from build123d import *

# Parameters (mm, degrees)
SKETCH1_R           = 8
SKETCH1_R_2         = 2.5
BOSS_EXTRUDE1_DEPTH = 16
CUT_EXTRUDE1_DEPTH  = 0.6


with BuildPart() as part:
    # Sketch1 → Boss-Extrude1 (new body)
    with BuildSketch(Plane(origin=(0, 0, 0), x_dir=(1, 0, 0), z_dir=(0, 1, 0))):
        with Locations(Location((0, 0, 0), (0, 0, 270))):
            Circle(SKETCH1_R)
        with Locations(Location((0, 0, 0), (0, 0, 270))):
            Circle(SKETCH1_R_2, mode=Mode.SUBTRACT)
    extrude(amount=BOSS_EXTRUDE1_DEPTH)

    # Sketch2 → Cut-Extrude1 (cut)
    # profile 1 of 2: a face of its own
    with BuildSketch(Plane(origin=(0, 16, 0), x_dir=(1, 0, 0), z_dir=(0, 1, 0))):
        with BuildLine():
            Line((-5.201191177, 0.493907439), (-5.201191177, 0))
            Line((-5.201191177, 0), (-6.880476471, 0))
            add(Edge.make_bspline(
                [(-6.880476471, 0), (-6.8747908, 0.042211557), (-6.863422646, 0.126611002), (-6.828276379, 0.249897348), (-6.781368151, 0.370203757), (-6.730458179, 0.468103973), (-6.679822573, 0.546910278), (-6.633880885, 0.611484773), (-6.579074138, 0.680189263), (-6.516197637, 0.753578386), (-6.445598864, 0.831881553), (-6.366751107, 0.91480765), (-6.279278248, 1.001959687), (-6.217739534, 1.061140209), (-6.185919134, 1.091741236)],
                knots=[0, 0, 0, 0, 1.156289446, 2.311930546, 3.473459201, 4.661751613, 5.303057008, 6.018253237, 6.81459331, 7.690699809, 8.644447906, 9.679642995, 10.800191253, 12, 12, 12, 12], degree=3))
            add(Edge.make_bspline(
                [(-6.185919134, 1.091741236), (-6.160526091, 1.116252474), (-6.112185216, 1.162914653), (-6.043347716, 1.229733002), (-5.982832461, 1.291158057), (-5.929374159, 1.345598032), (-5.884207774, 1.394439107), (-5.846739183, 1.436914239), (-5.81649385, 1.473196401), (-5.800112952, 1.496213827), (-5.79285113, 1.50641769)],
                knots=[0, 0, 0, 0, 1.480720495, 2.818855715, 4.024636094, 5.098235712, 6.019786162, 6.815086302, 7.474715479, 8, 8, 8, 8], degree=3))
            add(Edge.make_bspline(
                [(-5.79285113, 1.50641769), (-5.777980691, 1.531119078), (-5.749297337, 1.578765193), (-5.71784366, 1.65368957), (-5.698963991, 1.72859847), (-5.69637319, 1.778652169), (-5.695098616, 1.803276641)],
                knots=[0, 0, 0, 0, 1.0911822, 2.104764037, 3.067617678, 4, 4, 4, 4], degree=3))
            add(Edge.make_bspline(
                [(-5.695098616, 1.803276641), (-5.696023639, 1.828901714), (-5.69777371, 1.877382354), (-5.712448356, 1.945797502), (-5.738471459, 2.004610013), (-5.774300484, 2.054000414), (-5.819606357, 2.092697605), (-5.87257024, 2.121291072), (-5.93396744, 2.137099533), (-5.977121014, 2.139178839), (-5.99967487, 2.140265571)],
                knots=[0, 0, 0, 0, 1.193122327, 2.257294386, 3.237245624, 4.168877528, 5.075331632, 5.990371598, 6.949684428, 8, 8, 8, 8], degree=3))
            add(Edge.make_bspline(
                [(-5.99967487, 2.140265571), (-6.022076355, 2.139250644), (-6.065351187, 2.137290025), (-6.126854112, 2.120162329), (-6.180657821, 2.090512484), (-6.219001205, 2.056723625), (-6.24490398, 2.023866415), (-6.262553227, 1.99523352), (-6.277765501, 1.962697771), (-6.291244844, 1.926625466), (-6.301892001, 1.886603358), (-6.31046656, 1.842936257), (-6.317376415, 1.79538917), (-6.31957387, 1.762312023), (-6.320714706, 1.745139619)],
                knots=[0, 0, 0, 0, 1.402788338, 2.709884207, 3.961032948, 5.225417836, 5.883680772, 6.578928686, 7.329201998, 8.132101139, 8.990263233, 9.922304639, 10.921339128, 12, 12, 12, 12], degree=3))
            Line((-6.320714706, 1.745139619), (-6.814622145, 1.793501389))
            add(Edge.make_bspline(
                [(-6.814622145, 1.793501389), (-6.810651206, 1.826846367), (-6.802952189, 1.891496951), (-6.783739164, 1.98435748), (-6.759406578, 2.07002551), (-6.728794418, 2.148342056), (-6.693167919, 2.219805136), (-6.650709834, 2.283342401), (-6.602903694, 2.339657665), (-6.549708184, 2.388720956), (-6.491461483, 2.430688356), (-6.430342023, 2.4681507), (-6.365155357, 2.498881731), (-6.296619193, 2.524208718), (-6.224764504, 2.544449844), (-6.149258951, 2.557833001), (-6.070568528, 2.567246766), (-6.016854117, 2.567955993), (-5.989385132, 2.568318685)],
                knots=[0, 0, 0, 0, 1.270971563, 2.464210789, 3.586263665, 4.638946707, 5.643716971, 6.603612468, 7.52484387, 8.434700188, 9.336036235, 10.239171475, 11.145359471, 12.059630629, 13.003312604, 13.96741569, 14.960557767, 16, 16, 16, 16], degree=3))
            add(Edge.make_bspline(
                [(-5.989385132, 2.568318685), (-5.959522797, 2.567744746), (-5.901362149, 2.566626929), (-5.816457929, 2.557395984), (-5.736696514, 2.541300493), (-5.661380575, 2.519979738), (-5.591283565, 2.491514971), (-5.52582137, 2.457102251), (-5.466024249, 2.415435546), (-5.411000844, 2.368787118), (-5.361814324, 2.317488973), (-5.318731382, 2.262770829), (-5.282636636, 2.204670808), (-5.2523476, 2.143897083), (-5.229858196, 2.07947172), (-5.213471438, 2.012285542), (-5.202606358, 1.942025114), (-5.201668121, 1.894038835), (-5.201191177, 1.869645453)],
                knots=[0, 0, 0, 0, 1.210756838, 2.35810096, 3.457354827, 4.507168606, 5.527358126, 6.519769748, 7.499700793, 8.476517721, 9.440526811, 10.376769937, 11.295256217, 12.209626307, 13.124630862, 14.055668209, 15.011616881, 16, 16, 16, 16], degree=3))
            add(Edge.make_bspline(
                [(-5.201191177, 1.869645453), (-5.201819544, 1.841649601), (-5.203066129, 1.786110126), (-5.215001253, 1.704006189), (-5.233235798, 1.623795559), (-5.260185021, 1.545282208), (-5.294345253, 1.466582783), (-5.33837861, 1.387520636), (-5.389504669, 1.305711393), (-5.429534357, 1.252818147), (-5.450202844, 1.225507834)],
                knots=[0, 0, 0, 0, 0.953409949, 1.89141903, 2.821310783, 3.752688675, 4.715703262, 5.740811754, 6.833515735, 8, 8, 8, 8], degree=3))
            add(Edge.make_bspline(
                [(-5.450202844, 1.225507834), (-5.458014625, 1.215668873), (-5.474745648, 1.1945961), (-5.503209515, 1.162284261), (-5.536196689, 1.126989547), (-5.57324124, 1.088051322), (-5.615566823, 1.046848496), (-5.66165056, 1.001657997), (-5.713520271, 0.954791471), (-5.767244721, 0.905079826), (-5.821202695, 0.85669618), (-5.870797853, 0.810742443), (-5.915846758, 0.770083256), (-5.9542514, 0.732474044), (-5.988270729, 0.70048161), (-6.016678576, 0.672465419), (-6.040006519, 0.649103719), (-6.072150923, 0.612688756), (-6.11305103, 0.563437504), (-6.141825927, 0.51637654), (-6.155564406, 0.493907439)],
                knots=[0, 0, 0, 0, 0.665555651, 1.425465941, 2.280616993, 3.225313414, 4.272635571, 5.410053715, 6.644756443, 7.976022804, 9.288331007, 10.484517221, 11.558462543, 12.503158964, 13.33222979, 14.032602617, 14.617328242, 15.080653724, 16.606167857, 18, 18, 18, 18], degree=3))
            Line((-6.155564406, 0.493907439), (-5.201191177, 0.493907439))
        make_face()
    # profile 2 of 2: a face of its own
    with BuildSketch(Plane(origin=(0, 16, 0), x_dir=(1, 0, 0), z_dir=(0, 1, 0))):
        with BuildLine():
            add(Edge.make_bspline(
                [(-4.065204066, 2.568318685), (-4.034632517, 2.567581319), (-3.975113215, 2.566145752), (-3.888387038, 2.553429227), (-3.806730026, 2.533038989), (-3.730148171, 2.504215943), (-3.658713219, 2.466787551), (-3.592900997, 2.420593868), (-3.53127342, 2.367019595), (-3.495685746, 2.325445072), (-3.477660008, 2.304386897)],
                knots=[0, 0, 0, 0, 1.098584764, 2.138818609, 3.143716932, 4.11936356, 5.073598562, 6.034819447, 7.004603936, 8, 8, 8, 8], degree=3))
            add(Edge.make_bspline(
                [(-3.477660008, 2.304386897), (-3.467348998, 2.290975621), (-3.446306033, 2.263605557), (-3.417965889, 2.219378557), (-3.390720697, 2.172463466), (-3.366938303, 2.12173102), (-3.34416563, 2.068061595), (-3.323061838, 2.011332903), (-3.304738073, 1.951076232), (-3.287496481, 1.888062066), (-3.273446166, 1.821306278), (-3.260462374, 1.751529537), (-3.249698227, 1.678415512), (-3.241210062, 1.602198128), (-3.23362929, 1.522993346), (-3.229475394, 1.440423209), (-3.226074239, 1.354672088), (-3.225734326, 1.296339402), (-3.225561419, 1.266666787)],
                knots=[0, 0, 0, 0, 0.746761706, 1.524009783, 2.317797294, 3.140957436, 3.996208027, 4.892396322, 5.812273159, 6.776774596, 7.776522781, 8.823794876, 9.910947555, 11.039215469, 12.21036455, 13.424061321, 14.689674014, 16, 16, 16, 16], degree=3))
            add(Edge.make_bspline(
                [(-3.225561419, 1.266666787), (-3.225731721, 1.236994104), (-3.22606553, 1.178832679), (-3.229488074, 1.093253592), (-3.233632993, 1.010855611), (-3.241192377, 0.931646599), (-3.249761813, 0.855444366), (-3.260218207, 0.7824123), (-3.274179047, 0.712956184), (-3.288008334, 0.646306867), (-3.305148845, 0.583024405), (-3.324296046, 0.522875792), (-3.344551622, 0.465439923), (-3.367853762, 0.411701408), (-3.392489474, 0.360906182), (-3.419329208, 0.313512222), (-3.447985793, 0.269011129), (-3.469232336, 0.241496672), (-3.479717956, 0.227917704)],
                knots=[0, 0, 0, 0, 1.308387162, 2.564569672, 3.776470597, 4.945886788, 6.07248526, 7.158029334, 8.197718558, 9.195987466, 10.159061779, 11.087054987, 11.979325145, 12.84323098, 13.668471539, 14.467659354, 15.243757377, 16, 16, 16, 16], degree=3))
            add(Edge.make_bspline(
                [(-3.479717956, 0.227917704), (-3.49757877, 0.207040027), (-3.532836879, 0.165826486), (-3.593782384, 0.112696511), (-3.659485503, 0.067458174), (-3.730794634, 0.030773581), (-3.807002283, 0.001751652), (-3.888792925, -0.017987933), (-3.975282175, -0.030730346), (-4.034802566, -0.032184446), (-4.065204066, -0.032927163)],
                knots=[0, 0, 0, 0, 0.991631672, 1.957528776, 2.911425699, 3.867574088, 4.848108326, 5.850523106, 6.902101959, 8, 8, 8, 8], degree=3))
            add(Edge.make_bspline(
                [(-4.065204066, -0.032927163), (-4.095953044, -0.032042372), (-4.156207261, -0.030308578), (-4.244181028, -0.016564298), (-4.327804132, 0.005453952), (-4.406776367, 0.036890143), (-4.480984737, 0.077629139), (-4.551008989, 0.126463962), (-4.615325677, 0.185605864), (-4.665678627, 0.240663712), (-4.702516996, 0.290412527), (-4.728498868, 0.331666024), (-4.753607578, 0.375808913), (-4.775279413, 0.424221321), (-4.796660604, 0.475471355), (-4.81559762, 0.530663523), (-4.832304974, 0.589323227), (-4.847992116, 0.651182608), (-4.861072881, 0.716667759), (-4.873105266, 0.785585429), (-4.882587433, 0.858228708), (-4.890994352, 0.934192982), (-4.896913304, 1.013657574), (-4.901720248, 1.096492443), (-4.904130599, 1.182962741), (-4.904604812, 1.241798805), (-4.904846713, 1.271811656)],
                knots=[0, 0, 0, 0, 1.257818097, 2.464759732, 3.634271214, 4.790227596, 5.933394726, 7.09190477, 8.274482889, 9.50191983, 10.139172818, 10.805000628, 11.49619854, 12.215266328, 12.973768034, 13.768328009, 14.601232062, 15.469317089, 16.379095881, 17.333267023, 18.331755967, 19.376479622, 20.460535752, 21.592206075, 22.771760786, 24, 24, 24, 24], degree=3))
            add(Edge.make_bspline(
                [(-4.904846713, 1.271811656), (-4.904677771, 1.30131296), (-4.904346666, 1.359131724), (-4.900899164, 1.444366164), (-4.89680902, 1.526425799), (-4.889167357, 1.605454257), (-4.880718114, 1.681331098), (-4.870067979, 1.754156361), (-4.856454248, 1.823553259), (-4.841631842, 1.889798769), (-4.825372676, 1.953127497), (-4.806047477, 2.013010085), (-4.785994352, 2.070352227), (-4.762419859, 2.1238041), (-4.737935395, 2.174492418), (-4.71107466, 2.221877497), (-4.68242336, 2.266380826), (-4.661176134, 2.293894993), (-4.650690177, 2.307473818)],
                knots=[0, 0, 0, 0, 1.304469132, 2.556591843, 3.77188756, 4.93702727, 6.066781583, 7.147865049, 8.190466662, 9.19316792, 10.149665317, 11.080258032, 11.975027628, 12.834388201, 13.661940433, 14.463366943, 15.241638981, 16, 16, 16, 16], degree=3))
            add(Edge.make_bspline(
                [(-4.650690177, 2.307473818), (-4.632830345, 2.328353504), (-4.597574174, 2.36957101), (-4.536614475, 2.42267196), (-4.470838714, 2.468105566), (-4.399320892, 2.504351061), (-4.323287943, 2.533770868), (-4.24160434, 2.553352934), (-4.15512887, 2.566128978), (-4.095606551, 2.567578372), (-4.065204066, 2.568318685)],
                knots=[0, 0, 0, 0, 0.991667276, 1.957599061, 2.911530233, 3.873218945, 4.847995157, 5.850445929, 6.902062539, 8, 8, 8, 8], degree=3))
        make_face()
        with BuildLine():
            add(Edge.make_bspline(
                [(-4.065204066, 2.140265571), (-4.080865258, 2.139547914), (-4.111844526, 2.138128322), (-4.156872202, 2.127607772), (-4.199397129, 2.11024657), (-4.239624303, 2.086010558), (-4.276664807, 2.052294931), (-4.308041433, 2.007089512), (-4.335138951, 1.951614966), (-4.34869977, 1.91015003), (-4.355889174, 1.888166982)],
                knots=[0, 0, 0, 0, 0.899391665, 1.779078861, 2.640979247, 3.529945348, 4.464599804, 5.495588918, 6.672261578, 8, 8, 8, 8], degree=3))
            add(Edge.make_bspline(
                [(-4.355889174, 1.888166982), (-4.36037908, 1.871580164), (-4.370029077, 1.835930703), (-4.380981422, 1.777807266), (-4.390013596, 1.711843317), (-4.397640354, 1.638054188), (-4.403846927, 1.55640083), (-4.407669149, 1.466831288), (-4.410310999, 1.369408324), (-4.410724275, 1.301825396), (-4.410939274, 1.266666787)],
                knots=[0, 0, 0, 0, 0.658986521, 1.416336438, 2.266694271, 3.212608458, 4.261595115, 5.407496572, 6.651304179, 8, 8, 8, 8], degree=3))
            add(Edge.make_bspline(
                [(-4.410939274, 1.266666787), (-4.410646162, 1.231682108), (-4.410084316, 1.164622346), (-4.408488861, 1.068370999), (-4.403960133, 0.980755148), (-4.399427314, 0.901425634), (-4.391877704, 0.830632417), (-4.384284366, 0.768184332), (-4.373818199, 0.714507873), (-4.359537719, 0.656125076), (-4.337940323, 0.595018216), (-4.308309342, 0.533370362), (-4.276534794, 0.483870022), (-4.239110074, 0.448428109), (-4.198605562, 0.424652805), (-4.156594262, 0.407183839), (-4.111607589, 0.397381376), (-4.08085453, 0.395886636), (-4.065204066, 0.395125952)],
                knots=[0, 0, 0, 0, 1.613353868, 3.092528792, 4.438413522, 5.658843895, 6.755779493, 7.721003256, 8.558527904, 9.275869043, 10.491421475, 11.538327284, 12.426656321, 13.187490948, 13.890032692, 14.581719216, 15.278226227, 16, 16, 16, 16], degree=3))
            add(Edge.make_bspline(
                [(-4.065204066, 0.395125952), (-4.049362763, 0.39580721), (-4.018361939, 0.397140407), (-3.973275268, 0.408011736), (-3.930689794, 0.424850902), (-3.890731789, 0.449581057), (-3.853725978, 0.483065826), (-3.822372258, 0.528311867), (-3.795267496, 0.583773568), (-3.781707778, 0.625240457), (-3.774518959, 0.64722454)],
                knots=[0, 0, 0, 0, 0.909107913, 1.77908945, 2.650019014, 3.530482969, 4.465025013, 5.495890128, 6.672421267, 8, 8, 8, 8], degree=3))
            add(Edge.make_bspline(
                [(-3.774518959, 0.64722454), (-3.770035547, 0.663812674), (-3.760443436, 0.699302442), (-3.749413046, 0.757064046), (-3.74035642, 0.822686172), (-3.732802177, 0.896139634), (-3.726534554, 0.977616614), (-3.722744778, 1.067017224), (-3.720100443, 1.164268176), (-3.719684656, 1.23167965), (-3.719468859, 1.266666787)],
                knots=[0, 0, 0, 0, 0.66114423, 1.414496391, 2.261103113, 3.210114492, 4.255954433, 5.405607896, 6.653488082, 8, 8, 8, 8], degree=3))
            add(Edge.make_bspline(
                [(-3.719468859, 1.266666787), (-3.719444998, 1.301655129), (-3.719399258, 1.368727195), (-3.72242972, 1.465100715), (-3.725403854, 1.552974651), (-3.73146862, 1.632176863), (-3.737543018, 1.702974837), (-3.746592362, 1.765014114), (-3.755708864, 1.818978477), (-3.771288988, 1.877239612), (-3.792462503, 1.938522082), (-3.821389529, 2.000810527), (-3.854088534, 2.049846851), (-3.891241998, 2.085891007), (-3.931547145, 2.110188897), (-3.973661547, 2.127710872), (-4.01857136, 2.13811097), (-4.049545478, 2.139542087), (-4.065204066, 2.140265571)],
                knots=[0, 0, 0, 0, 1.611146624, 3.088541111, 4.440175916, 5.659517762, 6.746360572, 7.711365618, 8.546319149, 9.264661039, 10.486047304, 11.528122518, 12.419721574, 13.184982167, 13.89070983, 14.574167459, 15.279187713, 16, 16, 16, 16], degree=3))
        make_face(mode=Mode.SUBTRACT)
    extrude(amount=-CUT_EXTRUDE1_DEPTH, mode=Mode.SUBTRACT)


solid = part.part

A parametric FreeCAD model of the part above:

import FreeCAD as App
import Part
import Sketcher
Q = App.Units.Quantity

doc = App.newDocument("Part")
body = doc.addObject("PartDesign::Body", "Body")

sketch1 = body.newObject("Sketcher::SketchObject", "Sketch")
sketch1.AttachmentSupport = (doc.getObject("XZ_Plane"), [""])
sketch1.MapMode = "FlatFace"
sketch1.addGeometry(Part.Circle(App.Vector(0, 0, 0), App.Vector(0, 0, 1), 8), False)
sketch1.addGeometry(Part.Circle(App.Vector(0, 0, 0), App.Vector(0, 0, 1), 2.5), False)
sketch1.addConstraint(Sketcher.Constraint("Coincident", 0, 3, -1, 1))
sketch1.addConstraint(Sketcher.Constraint("Coincident", 1, 3, -1, 1))
sketch1.addConstraint(Sketcher.Constraint("Diameter", 0, Q("16 mm")))
sketch1.addConstraint(Sketcher.Constraint("Diameter", 1, Q("5 mm")))
pad1 = body.newObject("PartDesign::Pad", "Pad")
pad1.Profile = sketch1
pad1.Length = 16
pad1.Reversed = True

sketch2 = body.newObject("Sketcher::SketchObject", "Sketch001")
sketch2.AttachmentSupport = (doc.getObject("XZ_Plane"), [""])
sketch2.MapMode = "FlatFace"
sketch2.AttachmentOffset = App.Placement(App.Vector(0, 0, -16), App.Rotation())
sketch2.addGeometry(Part.LineSegment(App.Vector(-5.201191, 0, 0), App.Vector(-5.201191, -0.493907, 0)), False)
sketch2.addGeometry(Part.LineSegment(App.Vector(-5.201191, -0.493907, 0), App.Vector(-6.155564, -0.493907, 0)), False)
sketch2.addGeometry(Part.BSplineCurve([App.Vector(-5.450203, -1.225508, 0), App.Vector(-5.458015, -1.215669, 0), App.Vector(-5.474746, -1.194596, 0), App.Vector(-5.50321, -1.162284, 0), App.Vector(-5.536197, -1.12699, 0), App.Vector(-5.573241, -1.088051, 0), App.Vector(-5.615567, -1.046848, 0), App.Vector(-5.661651, -1.001658, 0), App.Vector(-5.71352, -0.954791, 0), App.Vector(-5.767245, -0.90508, 0), App.Vector(-5.821203, -0.856696, 0), App.Vector(-5.870798, -0.810742, 0), App.Vector(-5.915847, -0.770083, 0), App.Vector(-5.954251, -0.732474, 0), App.Vector(-5.988271, -0.700482, 0), App.Vector(-6.016679, -0.672465, 0), App.Vector(-6.040007, -0.649104, 0), App.Vector(-6.072151, -0.612689, 0), App.Vector(-6.113051, -0.563438, 0), App.Vector(-6.141826, -0.516377, 0), App.Vector(-6.155564, -0.493907, 0)], [4, 1, 1, 1, 1, 1, 1, 1, 1, 1, 1, 1, 1, 1, 1, 1, 1, 1, 4], [0, 0.665555651, 1.425465941, 2.280616993, 3.225313414, 4.272635571, 5.410053715, 6.644756443, 7.976022804, 9.288331007, 10.484517221, 11.558462543, 12.503158964, 13.33222979, 14.032602617, 14.617328242, 15.080653724, 16.606167857, 18], False, 3, [1, 1, 1, 1, 1, 1, 1, 1, 1, 1, 1, 1, 1, 1, 1, 1, 1, 1, 1, 1, 1], False), False)
sketch2.addGeometry(Part.BSplineCurve([App.Vector(-5.201191, -1.869645, 0), App.Vector(-5.20182, -1.84165, 0), App.Vector(-5.203066, -1.78611, 0), App.Vector(-5.215001, -1.704006, 0), App.Vector(-5.233236, -1.623796, 0), App.Vector(-5.260185, -1.545282, 0), App.Vector(-5.294345, -1.466583, 0), App.Vector(-5.338379, -1.387521, 0), App.Vector(-5.389505, -1.305711, 0), App.Vector(-5.429534, -1.252818, 0), App.Vector(-5.450203, -1.225508, 0)], [4, 1, 1, 1, 1, 1, 1, 1, 4], [0, 0.953409949, 1.89141903, 2.821310783, 3.752688675, 4.715703262, 5.740811754, 6.833515735, 8], False, 3, [1, 1, 1, 1, 1, 1, 1, 1, 1, 1, 1], False), False)
sketch2.addGeometry(Part.BSplineCurve([App.Vector(-5.989385, -2.568319, 0), App.Vector(-5.959523, -2.567745, 0), App.Vector(-5.901362, -2.566627, 0), App.Vector(-5.816458, -2.557396, 0), App.Vector(-5.736697, -2.5413, 0), App.Vector(-5.661381, -2.51998, 0), App.Vector(-5.591284, -2.491515, 0), App.Vector(-5.525821, -2.457102, 0), App.Vector(-5.466024, -2.415436, 0), App.Vector(-5.411001, -2.368787, 0), App.Vector(-5.361814, -2.317489, 0), App.Vector(-5.318731, -2.262771, 0), App.Vector(-5.282637, -2.204671, 0), App.Vector(-5.252348, -2.143897, 0), App.Vector(-5.229858, -2.079472, 0), App.Vector(-5.213471, -2.012286, 0), App.Vector(-5.202606, -1.942025, 0), App.Vector(-5.201668, -1.894039, 0), App.Vector(-5.201191, -1.869645, 0)], [4, 1, 1, 1, 1, 1, 1, 1, 1, 1, 1, 1, 1, 1, 1, 1, 4], [0, 1.210756838, 2.35810096, 3.457354827, 4.507168606, 5.527358126, 6.519769748, 7.499700793, 8.476517721, 9.440526811, 10.376769937, 11.295256217, 12.209626307, 13.124630862, 14.055668209, 15.011616881, 16], False, 3, [1, 1, 1, 1, 1, 1, 1, 1, 1, 1, 1, 1, 1, 1, 1, 1, 1, 1, 1], False), False)
sketch2.addGeometry(Part.BSplineCurve([App.Vector(-6.814622, -1.793501, 0), App.Vector(-6.810651, -1.826846, 0), App.Vector(-6.802952, -1.891497, 0), App.Vector(-6.783739, -1.984357, 0), App.Vector(-6.759407, -2.070026, 0), App.Vector(-6.728794, -2.148342, 0), App.Vector(-6.693168, -2.219805, 0), App.Vector(-6.65071, -2.283342, 0), App.Vector(-6.602904, -2.339658, 0), App.Vector(-6.549708, -2.388721, 0), App.Vector(-6.491461, -2.430688, 0), App.Vector(-6.430342, -2.468151, 0), App.Vector(-6.365155, -2.498882, 0), App.Vector(-6.296619, -2.524209, 0), App.Vector(-6.224765, -2.54445, 0), App.Vector(-6.149259, -2.557833, 0), App.Vector(-6.070569, -2.567247, 0), App.Vector(-6.016854, -2.567956, 0), App.Vector(-5.989385, -2.568319, 0)], [4, 1, 1, 1, 1, 1, 1, 1, 1, 1, 1, 1, 1, 1, 1, 1, 4], [0, 1.270971563, 2.464210789, 3.586263665, 4.638946707, 5.643716971, 6.603612468, 7.52484387, 8.434700188, 9.336036235, 10.239171475, 11.145359471, 12.059630629, 13.003312604, 13.96741569, 14.960557767, 16], False, 3, [1, 1, 1, 1, 1, 1, 1, 1, 1, 1, 1, 1, 1, 1, 1, 1, 1, 1, 1], False), False)
sketch2.addGeometry(Part.LineSegment(App.Vector(-6.814622, -1.793501, 0), App.Vector(-6.320715, -1.74514, 0)), False)
sketch2.addGeometry(Part.BSplineCurve([App.Vector(-5.999675, -2.140266, 0), App.Vector(-6.022076, -2.139251, 0), App.Vector(-6.065351, -2.13729, 0), App.Vector(-6.126854, -2.120162, 0), App.Vector(-6.180658, -2.090512, 0), App.Vector(-6.219001, -2.056724, 0), App.Vector(-6.244904, -2.023866, 0), App.Vector(-6.262553, -1.995234, 0), App.Vector(-6.277766, -1.962698, 0), App.Vector(-6.291245, -1.926625, 0), App.Vector(-6.301892, -1.886603, 0), App.Vector(-6.310467, -1.842936, 0), App.Vector(-6.317376, -1.795389, 0), App.Vector(-6.319574, -1.762312, 0), App.Vector(-6.320715, -1.74514, 0)], [4, 1, 1, 1, 1, 1, 1, 1, 1, 1, 1, 1, 4], [0, 1.402788338, 2.709884207, 3.961032948, 5.225417836, 5.883680772, 6.578928686, 7.329201998, 8.132101139, 8.990263233, 9.922304639, 10.921339128, 12], False, 3, [1, 1, 1, 1, 1, 1, 1, 1, 1, 1, 1, 1, 1, 1, 1], False), False)
sketch2.addGeometry(Part.BSplineCurve([App.Vector(-5.695099, -1.803277, 0), App.Vector(-5.696024, -1.828902, 0), App.Vector(-5.697774, -1.877382, 0), App.Vector(-5.712448, -1.945798, 0), App.Vector(-5.738471, -2.00461, 0), App.Vector(-5.7743, -2.054, 0), App.Vector(-5.819606, -2.092698, 0), App.Vector(-5.87257, -2.121291, 0), App.Vector(-5.933967, -2.1371, 0), App.Vector(-5.977121, -2.139179, 0), App.Vector(-5.999675, -2.140266, 0)], [4, 1, 1, 1, 1, 1, 1, 1, 4], [0, 1.193122327, 2.257294386, 3.237245624, 4.168877528, 5.075331632, 5.990371598, 6.949684428, 8], False, 3, [1, 1, 1, 1, 1, 1, 1, 1, 1, 1, 1], False), False)
sketch2.addGeometry(Part.BSplineCurve([App.Vector(-5.792851, -1.506418, 0), App.Vector(-5.777981, -1.531119, 0), App.Vector(-5.749297, -1.578765, 0), App.Vector(-5.717844, -1.65369, 0), App.Vector(-5.698964, -1.728598, 0), App.Vector(-5.696373, -1.778652, 0), App.Vector(-5.695099, -1.803277, 0)], [4, 1, 1, 1, 4], [0, 1.0911822, 2.104764037, 3.067617678, 4], False, 3, [1, 1, 1, 1, 1, 1, 1], False), False)
sketch2.addGeometry(Part.BSplineCurve([App.Vector(-6.185919, -1.091741, 0), App.Vector(-6.160526, -1.116252, 0), App.Vector(-6.112185, -1.162915, 0), App.Vector(-6.043348, -1.229733, 0), App.Vector(-5.982832, -1.291158, 0), App.Vector(-5.929374, -1.345598, 0), App.Vector(-5.884208, -1.394439, 0), App.Vector(-5.846739, -1.436914, 0), App.Vector(-5.816494, -1.473196, 0), App.Vector(-5.800113, -1.496214, 0), App.Vector(-5.792851, -1.506418, 0)], [4, 1, 1, 1, 1, 1, 1, 1, 4], [0, 1.480720495, 2.818855715, 4.024636094, 5.098235712, 6.019786162, 6.815086302, 7.474715479, 8], False, 3, [1, 1, 1, 1, 1, 1, 1, 1, 1, 1, 1], False), False)
sketch2.addGeometry(Part.BSplineCurve([App.Vector(-6.880476, 0, 0), App.Vector(-6.874791, -0.042212, 0), App.Vector(-6.863423, -0.126611, 0), App.Vector(-6.828276, -0.249897, 0), App.Vector(-6.781368, -0.370204, 0), App.Vector(-6.730458, -0.468104, 0), App.Vector(-6.679823, -0.54691, 0), App.Vector(-6.633881, -0.611485, 0), App.Vector(-6.579074, -0.680189, 0), App.Vector(-6.516198, -0.753578, 0), App.Vector(-6.445599, -0.831882, 0), App.Vector(-6.366751, -0.914808, 0), App.Vector(-6.279278, -1.00196, 0), App.Vector(-6.21774, -1.06114, 0), App.Vector(-6.185919, -1.091741, 0)], [4, 1, 1, 1, 1, 1, 1, 1, 1, 1, 1, 1, 4], [0, 1.156289446, 2.311930546, 3.473459201, 4.661751613, 5.303057008, 6.018253237, 6.81459331, 7.690699809, 8.644447906, 9.679642995, 10.800191253, 12], False, 3, [1, 1, 1, 1, 1, 1, 1, 1, 1, 1, 1, 1, 1, 1, 1], False), False)
sketch2.addGeometry(Part.LineSegment(App.Vector(-6.880476, 0, 0), App.Vector(-5.201191, 0, 0)), False)
sketch2.addGeometry(Part.BSplineCurve([App.Vector(-4.065204, -2.568319, 0), App.Vector(-4.034633, -2.567581, 0), App.Vector(-3.975113, -2.566146, 0), App.Vector(-3.888387, -2.553429, 0), App.Vector(-3.80673, -2.533039, 0), App.Vector(-3.730148, -2.504216, 0), App.Vector(-3.658713, -2.466788, 0), App.Vector(-3.592901, -2.420594, 0), App.Vector(-3.531273, -2.36702, 0), App.Vector(-3.495686, -2.325445, 0), App.Vector(-3.47766, -2.304387, 0)], [4, 1, 1, 1, 1, 1, 1, 1, 4], [0, 1.098584764, 2.138818609, 3.143716932, 4.11936356, 5.073598562, 6.034819447, 7.004603936, 8], False, 3, [1, 1, 1, 1, 1, 1, 1, 1, 1, 1, 1], False), False)
sketch2.addGeometry(Part.BSplineCurve([App.Vector(-4.65069, -2.307474, 0), App.Vector(-4.63283, -2.328354, 0), App.Vector(-4.597574, -2.369571, 0), App.Vector(-4.536614, -2.422672, 0), App.Vector(-4.470839, -2.468106, 0), App.Vector(-4.399321, -2.504351, 0), App.Vector(-4.323288, -2.533771, 0), App.Vector(-4.241604, -2.553353, 0), App.Vector(-4.155129, -2.566129, 0), App.Vector(-4.095607, -2.567578, 0), App.Vector(-4.065204, -2.568319, 0)], [4, 1, 1, 1, 1, 1, 1, 1, 4], [0, 0.991667276, 1.957599061, 2.911530233, 3.873218945, 4.847995157, 5.850445929, 6.902062539, 8], False, 3, [1, 1, 1, 1, 1, 1, 1, 1, 1, 1, 1], False), False)
sketch2.addGeometry(Part.BSplineCurve([App.Vector(-4.904847, -1.271812, 0), App.Vector(-4.904678, -1.301313, 0), App.Vector(-4.904347, -1.359132, 0), App.Vector(-4.900899, -1.444366, 0), App.Vector(-4.896809, -1.526426, 0), App.Vector(-4.889167, -1.605454, 0), App.Vector(-4.880718, -1.681331, 0), App.Vector(-4.870068, -1.754156, 0), App.Vector(-4.856454, -1.823553, 0), App.Vector(-4.841632, -1.889799, 0), App.Vector(-4.825373, -1.953127, 0), App.Vector(-4.806047, -2.01301, 0), App.Vector(-4.785994, -2.070352, 0), App.Vector(-4.76242, -2.123804, 0), App.Vector(-4.737935, -2.174492, 0), App.Vector(-4.711075, -2.221877, 0), App.Vector(-4.682423, -2.266381, 0), App.Vector(-4.661176, -2.293895, 0), App.Vector(-4.65069, -2.307474, 0)], [4, 1, 1, 1, 1, 1, 1, 1, 1, 1, 1, 1, 1, 1, 1, 1, 4], [0, 1.304469132, 2.556591843, 3.77188756, 4.93702727, 6.066781583, 7.147865049, 8.190466662, 9.19316792, 10.149665317, 11.080258032, 11.975027628, 12.834388201, 13.661940433, 14.463366943, 15.241638981, 16], False, 3, [1, 1, 1, 1, 1, 1, 1, 1, 1, 1, 1, 1, 1, 1, 1, 1, 1, 1, 1], False), False)
sketch2.addGeometry(Part.BSplineCurve([App.Vector(-4.065204, 0.032927, 0), App.Vector(-4.095953, 0.032042, 0), App.Vector(-4.156207, 0.030309, 0), App.Vector(-4.244181, 0.016564, 0), App.Vector(-4.327804, -0.005454, 0), App.Vector(-4.406776, -0.03689, 0), App.Vector(-4.480985, -0.077629, 0), App.Vector(-4.551009, -0.126464, 0), App.Vector(-4.615326, -0.185606, 0), App.Vector(-4.665679, -0.240664, 0), App.Vector(-4.702517, -0.290413, 0), App.Vector(-4.728499, -0.331666, 0), App.Vector(-4.753608, -0.375809, 0), App.Vector(-4.775279, -0.424221, 0), App.Vector(-4.796661, -0.475471, 0), App.Vector(-4.815598, -0.530664, 0), App.Vector(-4.832305, -0.589323, 0), App.Vector(-4.847992, -0.651183, 0), App.Vector(-4.861073, -0.716668, 0), App.Vector(-4.873105, -0.785585, 0), App.Vector(-4.882587, -0.858229, 0), App.Vector(-4.890994, -0.934193, 0), App.Vector(-4.896913, -1.013658, 0), App.Vector(-4.90172, -1.096492, 0), App.Vector(-4.904131, -1.182963, 0), App.Vector(-4.904605, -1.241799, 0), App.Vector(-4.904847, -1.271812, 0)], [4, 1, 1, 1, 1, 1, 1, 1, 1, 1, 1, 1, 1, 1, 1, 1, 1, 1, 1, 1, 1, 1, 1, 1, 4], [0, 1.257818097, 2.464759732, 3.634271214, 4.790227596, 5.933394726, 7.09190477, 8.274482889, 9.50191983, 10.139172818, 10.805000628, 11.49619854, 12.215266328, 12.973768034, 13.768328009, 14.601232062, 15.469317089, 16.379095881, 17.333267023, 18.331755967, 19.376479622, 20.460535752, 21.592206075, 22.771760786, 24], False, 3, [1, 1, 1, 1, 1, 1, 1, 1, 1, 1, 1, 1, 1, 1, 1, 1, 1, 1, 1, 1, 1, 1, 1, 1, 1, 1, 1], False), False)
sketch2.addGeometry(Part.BSplineCurve([App.Vector(-3.479718, -0.227918, 0), App.Vector(-3.497579, -0.20704, 0), App.Vector(-3.532837, -0.165826, 0), App.Vector(-3.593782, -0.112697, 0), App.Vector(-3.659486, -0.067458, 0), App.Vector(-3.730795, -0.030774, 0), App.Vector(-3.807002, -0.001752, 0), App.Vector(-3.888793, 0.017988, 0), App.Vector(-3.975282, 0.03073, 0), App.Vector(-4.034803, 0.032184, 0), App.Vector(-4.065204, 0.032927, 0)], [4, 1, 1, 1, 1, 1, 1, 1, 4], [0, 0.991631672, 1.957528776, 2.911425699, 3.867574088, 4.848108326, 5.850523106, 6.902101959, 8], False, 3, [1, 1, 1, 1, 1, 1, 1, 1, 1, 1, 1], False), False)
sketch2.addGeometry(Part.BSplineCurve([App.Vector(-3.225561, -1.266667, 0), App.Vector(-3.225732, -1.236994, 0), App.Vector(-3.226066, -1.178833, 0), App.Vector(-3.229488, -1.093254, 0), App.Vector(-3.233633, -1.010856, 0), App.Vector(-3.241192, -0.931647, 0), App.Vector(-3.249762, -0.855444, 0), App.Vector(-3.260218, -0.782412, 0), App.Vector(-3.274179, -0.712956, 0), App.Vector(-3.288008, -0.646307, 0), App.Vector(-3.305149, -0.583024, 0), App.Vector(-3.324296, -0.522876, 0), App.Vector(-3.344552, -0.46544, 0), App.Vector(-3.367854, -0.411701, 0), App.Vector(-3.392489, -0.360906, 0), App.Vector(-3.419329, -0.313512, 0), App.Vector(-3.447986, -0.269011, 0), App.Vector(-3.469232, -0.241497, 0), App.Vector(-3.479718, -0.227918, 0)], [4, 1, 1, 1, 1, 1, 1, 1, 1, 1, 1, 1, 1, 1, 1, 1, 4], [0, 1.308387162, 2.564569672, 3.776470597, 4.945886788, 6.07248526, 7.158029334, 8.197718558, 9.195987466, 10.159061779, 11.087054987, 11.979325145, 12.84323098, 13.668471539, 14.467659354, 15.243757377, 16], False, 3, [1, 1, 1, 1, 1, 1, 1, 1, 1, 1, 1, 1, 1, 1, 1, 1, 1, 1, 1], False), False)
sketch2.addGeometry(Part.BSplineCurve([App.Vector(-3.47766, -2.304387, 0), App.Vector(-3.467349, -2.290976, 0), App.Vector(-3.446306, -2.263606, 0), App.Vector(-3.417966, -2.219379, 0), App.Vector(-3.390721, -2.172463, 0), App.Vector(-3.366938, -2.121731, 0), App.Vector(-3.344166, -2.068062, 0), App.Vector(-3.323062, -2.011333, 0), App.Vector(-3.304738, -1.951076, 0), App.Vector(-3.287496, -1.888062, 0), App.Vector(-3.273446, -1.821306, 0), App.Vector(-3.260462, -1.75153, 0), App.Vector(-3.249698, -1.678416, 0), App.Vector(-3.24121, -1.602198, 0), App.Vector(-3.233629, -1.522993, 0), App.Vector(-3.229475, -1.440423, 0), App.Vector(-3.226074, -1.354672, 0), App.Vector(-3.225734, -1.296339, 0), App.Vector(-3.225561, -1.266667, 0)], [4, 1, 1, 1, 1, 1, 1, 1, 1, 1, 1, 1, 1, 1, 1, 1, 4], [0, 0.746761706, 1.524009783, 2.317797294, 3.140957436, 3.996208027, 4.892396322, 5.812273159, 6.776774596, 7.776522781, 8.823794876, 9.910947555, 11.039215469, 12.21036455, 13.424061321, 14.689674014, 16], False, 3, [1, 1, 1, 1, 1, 1, 1, 1, 1, 1, 1, 1, 1, 1, 1, 1, 1, 1, 1], False), False)
sketch2.addGeometry(Part.BSplineCurve([App.Vector(-3.719469, -1.266667, 0), App.Vector(-3.719445, -1.301655, 0), App.Vector(-3.719399, -1.368727, 0), App.Vector(-3.72243, -1.465101, 0), App.Vector(-3.725404, -1.552975, 0), App.Vector(-3.731469, -1.632177, 0), App.Vector(-3.737543, -1.702975, 0), App.Vector(-3.746592, -1.765014, 0), App.Vector(-3.755709, -1.818978, 0), App.Vector(-3.771289, -1.87724, 0), App.Vector(-3.792463, -1.938522, 0), App.Vector(-3.82139, -2.000811, 0), App.Vector(-3.854089, -2.049847, 0), App.Vector(-3.891242, -2.085891, 0), App.Vector(-3.931547, -2.110189, 0), App.Vector(-3.973662, -2.127711, 0), App.Vector(-4.018571, -2.138111, 0), App.Vector(-4.049545, -2.139542, 0), App.Vector(-4.065204, -2.140266, 0)], [4, 1, 1, 1, 1, 1, 1, 1, 1, 1, 1, 1, 1, 1, 1, 1, 4], [0, 1.611146624, 3.088541111, 4.440175916, 5.659517762, 6.746360572, 7.711365618, 8.546319149, 9.264661039, 10.486047304, 11.528122518, 12.419721574, 13.184982167, 13.89070983, 14.574167459, 15.279187713, 16], False, 3, [1, 1, 1, 1, 1, 1, 1, 1, 1, 1, 1, 1, 1, 1, 1, 1, 1, 1, 1], False), False)
sketch2.addGeometry(Part.BSplineCurve([App.Vector(-3.774519, -0.647225, 0), App.Vector(-3.770036, -0.663813, 0), App.Vector(-3.760443, -0.699302, 0), App.Vector(-3.749413, -0.757064, 0), App.Vector(-3.740356, -0.822686, 0), App.Vector(-3.732802, -0.89614, 0), App.Vector(-3.726535, -0.977617, 0), App.Vector(-3.722745, -1.067017, 0), App.Vector(-3.7201, -1.164268, 0), App.Vector(-3.719685, -1.23168, 0), App.Vector(-3.719469, -1.266667, 0)], [4, 1, 1, 1, 1, 1, 1, 1, 4], [0, 0.66114423, 1.414496391, 2.261103113, 3.210114492, 4.255954433, 5.405607896, 6.653488082, 8], False, 3, [1, 1, 1, 1, 1, 1, 1, 1, 1, 1, 1], False), False)
sketch2.addGeometry(Part.BSplineCurve([App.Vector(-4.065204, -0.395126, 0), App.Vector(-4.049363, -0.395807, 0), App.Vector(-4.018362, -0.39714, 0), App.Vector(-3.973275, -0.408012, 0), App.Vector(-3.93069, -0.424851, 0), App.Vector(-3.890732, -0.449581, 0), App.Vector(-3.853726, -0.483066, 0), App.Vector(-3.822372, -0.528312, 0), App.Vector(-3.795267, -0.583774, 0), App.Vector(-3.781708, -0.62524, 0), App.Vector(-3.774519, -0.647225, 0)], [4, 1, 1, 1, 1, 1, 1, 1, 4], [0, 0.909107913, 1.77908945, 2.650019014, 3.530482969, 4.465025013, 5.495890128, 6.672421267, 8], False, 3, [1, 1, 1, 1, 1, 1, 1, 1, 1, 1, 1], False), False)
sketch2.addGeometry(Part.BSplineCurve([App.Vector(-4.410939, -1.266667, 0), App.Vector(-4.410646, -1.231682, 0), App.Vector(-4.410084, -1.164622, 0), App.Vector(-4.408489, -1.068371, 0), App.Vector(-4.40396, -0.980755, 0), App.Vector(-4.399427, -0.901426, 0), App.Vector(-4.391878, -0.830632, 0), App.Vector(-4.384284, -0.768184, 0), App.Vector(-4.373818, -0.714508, 0), App.Vector(-4.359538, -0.656125, 0), App.Vector(-4.33794, -0.595018, 0), App.Vector(-4.308309, -0.53337, 0), App.Vector(-4.276535, -0.48387, 0), App.Vector(-4.23911, -0.448428, 0), App.Vector(-4.198606, -0.424653, 0), App.Vector(-4.156594, -0.407184, 0), App.Vector(-4.111608, -0.397381, 0), App.Vector(-4.080855, -0.395887, 0), App.Vector(-4.065204, -0.395126, 0)], [4, 1, 1, 1, 1, 1, 1, 1, 1, 1, 1, 1, 1, 1, 1, 1, 4], [0, 1.613353868, 3.092528792, 4.438413522, 5.658843895, 6.755779493, 7.721003256, 8.558527904, 9.275869043, 10.491421475, 11.538327284, 12.426656321, 13.187490948, 13.890032692, 14.581719216, 15.278226227, 16], False, 3, [1, 1, 1, 1, 1, 1, 1, 1, 1, 1, 1, 1, 1, 1, 1, 1, 1, 1, 1], False), False)
sketch2.addGeometry(Part.BSplineCurve([App.Vector(-4.355889, -1.888167, 0), App.Vector(-4.360379, -1.87158, 0), App.Vector(-4.370029, -1.835931, 0), App.Vector(-4.380981, -1.777807, 0), App.Vector(-4.390014, -1.711843, 0), App.Vector(-4.39764, -1.638054, 0), App.Vector(-4.403847, -1.556401, 0), App.Vector(-4.407669, -1.466831, 0), App.Vector(-4.410311, -1.369408, 0), App.Vector(-4.410724, -1.301825, 0), App.Vector(-4.410939, -1.266667, 0)], [4, 1, 1, 1, 1, 1, 1, 1, 4], [0, 0.658986521, 1.416336438, 2.266694271, 3.212608458, 4.261595115, 5.407496572, 6.651304179, 8], False, 3, [1, 1, 1, 1, 1, 1, 1, 1, 1, 1, 1], False), False)
sketch2.addGeometry(Part.BSplineCurve([App.Vector(-4.065204, -2.140266, 0), App.Vector(-4.080865, -2.139548, 0), App.Vector(-4.111845, -2.138128, 0), App.Vector(-4.156872, -2.127608, 0), App.Vector(-4.199397, -2.110247, 0), App.Vector(-4.239624, -2.086011, 0), App.Vector(-4.276665, -2.052295, 0), App.Vector(-4.308041, -2.00709, 0), App.Vector(-4.335139, -1.951615, 0), App.Vector(-4.3487, -1.91015, 0), App.Vector(-4.355889, -1.888167, 0)], [4, 1, 1, 1, 1, 1, 1, 1, 4], [0, 0.899391665, 1.779078861, 2.640979247, 3.529945348, 4.464599804, 5.495588918, 6.672261578, 8], False, 3, [1, 1, 1, 1, 1, 1, 1, 1, 1, 1, 1], False), False)
sketch2.addConstraint(Sketcher.Constraint("Block", 2))
sketch2.addConstraint(Sketcher.Constraint("Block", 3))
sketch2.addConstraint(Sketcher.Constraint("Block", 4))
sketch2.addConstraint(Sketcher.Constraint("Block", 5))
sketch2.addConstraint(Sketcher.Constraint("Block", 7))
sketch2.addConstraint(Sketcher.Constraint("Block", 8))
sketch2.addConstraint(Sketcher.Constraint("Block", 9))
sketch2.addConstraint(Sketcher.Constraint("Block", 10))
sketch2.addConstraint(Sketcher.Constraint("Block", 11))
sketch2.addConstraint(Sketcher.Constraint("Block", 13))
sketch2.addConstraint(Sketcher.Constraint("Block", 14))
sketch2.addConstraint(Sketcher.Constraint("Block", 15))
sketch2.addConstraint(Sketcher.Constraint("Block", 16))
sketch2.addConstraint(Sketcher.Constraint("Block", 17))
sketch2.addConstraint(Sketcher.Constraint("Block", 18))
sketch2.addConstraint(Sketcher.Constraint("Block", 19))
sketch2.addConstraint(Sketcher.Constraint("Block", 20))
sketch2.addConstraint(Sketcher.Constraint("Block", 21))
sketch2.addConstraint(Sketcher.Constraint("Block", 22))
sketch2.addConstraint(Sketcher.Constraint("Block", 23))
sketch2.addConstraint(Sketcher.Constraint("Block", 24))
sketch2.addConstraint(Sketcher.Constraint("Block", 25))
sketch2.addConstraint(Sketcher.Constraint("Coincident", 0, 2, 1, 1))
sketch2.addConstraint(Sketcher.Constraint("Coincident", 1, 2, 2, 2))
sketch2.addConstraint(Sketcher.Constraint("Coincident", 5, 1, 6, 1))
sketch2.addConstraint(Sketcher.Constraint("Coincident", 6, 2, 7, 2))
sketch2.addConstraint(Sketcher.Constraint("Coincident", 11, 1, 12, 1))
sketch2.addConstraint(Sketcher.Constraint("Coincident", 12, 2, 0, 1))
sketch2.addConstraint(Sketcher.Constraint("Vertical", 0))
sketch2.addConstraint(Sketcher.Constraint("Horizontal", 1))
sketch2.addConstraint(Sketcher.Constraint("Horizontal", 12))
sketch2.addConstraint(Sketcher.Constraint("DistanceX", 1, 2, 1, 1, Q("0.954373 mm")))
pocket1 = body.newObject("PartDesign::Pocket", "Pocket")
pocket1.Profile = sketch2
pocket1.Length = 0.6
pocket1.Reversed = True

doc.recompute()
